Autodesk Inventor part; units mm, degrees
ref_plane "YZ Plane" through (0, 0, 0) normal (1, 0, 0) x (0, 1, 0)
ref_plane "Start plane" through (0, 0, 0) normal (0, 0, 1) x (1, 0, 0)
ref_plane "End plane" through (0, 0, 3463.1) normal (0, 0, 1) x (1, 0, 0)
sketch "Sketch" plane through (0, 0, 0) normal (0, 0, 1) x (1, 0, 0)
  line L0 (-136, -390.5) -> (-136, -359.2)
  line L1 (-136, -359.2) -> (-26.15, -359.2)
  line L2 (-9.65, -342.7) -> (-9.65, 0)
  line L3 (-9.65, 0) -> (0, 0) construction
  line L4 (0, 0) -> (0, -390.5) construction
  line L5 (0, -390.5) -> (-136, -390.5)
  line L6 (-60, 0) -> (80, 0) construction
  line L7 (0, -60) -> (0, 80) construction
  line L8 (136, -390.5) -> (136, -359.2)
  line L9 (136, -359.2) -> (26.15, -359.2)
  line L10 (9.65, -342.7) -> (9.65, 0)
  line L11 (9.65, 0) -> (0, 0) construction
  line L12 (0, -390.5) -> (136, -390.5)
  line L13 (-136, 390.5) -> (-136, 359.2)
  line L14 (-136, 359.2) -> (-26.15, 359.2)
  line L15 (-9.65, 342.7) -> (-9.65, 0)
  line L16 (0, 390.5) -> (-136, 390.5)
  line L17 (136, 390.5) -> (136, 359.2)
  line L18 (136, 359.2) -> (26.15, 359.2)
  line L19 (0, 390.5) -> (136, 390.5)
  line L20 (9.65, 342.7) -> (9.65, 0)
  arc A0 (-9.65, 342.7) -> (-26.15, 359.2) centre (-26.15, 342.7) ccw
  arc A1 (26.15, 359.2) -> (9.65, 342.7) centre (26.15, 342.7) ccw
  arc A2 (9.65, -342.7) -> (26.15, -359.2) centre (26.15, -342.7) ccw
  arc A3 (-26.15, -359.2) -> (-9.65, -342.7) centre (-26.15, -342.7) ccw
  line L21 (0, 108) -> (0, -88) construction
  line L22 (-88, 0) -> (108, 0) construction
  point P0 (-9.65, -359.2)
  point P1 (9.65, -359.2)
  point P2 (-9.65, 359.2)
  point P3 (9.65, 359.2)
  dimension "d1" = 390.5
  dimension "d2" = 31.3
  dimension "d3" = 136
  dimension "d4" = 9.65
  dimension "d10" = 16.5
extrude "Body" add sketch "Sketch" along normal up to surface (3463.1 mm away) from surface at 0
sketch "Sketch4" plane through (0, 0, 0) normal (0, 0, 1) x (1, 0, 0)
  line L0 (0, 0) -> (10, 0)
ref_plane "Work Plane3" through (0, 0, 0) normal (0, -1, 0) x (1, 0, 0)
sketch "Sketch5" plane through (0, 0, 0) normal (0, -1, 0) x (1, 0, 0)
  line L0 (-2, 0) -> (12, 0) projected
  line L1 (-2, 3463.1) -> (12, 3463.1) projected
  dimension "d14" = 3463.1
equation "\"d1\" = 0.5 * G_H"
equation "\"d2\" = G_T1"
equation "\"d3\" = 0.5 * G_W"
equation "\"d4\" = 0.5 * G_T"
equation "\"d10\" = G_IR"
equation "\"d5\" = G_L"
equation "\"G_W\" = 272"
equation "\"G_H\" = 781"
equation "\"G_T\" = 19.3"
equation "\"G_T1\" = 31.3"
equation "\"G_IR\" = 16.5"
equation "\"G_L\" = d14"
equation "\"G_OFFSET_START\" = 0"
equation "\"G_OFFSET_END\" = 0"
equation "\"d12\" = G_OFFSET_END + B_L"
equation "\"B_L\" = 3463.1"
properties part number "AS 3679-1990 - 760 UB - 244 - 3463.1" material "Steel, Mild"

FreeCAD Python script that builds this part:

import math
import FreeCAD as App
import Part
import Sketcher

doc = App.newDocument("Part")
params = doc.addObject("Spreadsheet::Sheet", "Params")
for row, (alias, value) in enumerate([
    ("sketch1_radius", "16.5 mm"),
    ("sketch1_height", "31.3 mm"),
    ("pad1_length", "3463.1 mm"),
], start=1):
    params.set(f"A{row}", alias)
    params.set(f"B{row}", "=" + value)
    params.setAlias(f"B{row}", alias)

body = doc.addObject("PartDesign::Body", "Body")

sketch1 = doc.addObject("Sketcher::SketchObject", "Sketch")
body.addObject(sketch1)
sketch1.AttachmentSupport = (doc.XY_Plane, [""])
sketch1.MapMode = "FlatFace"
sketch1.addGeometry([
    Part.LineSegment(App.Vector(-136, -359, 0), App.Vector(-136, -390, 0)),
    Part.LineSegment(App.Vector(-136, -390, 0), App.Vector(136, -390, 0)),
    Part.LineSegment(App.Vector(136, -390, 0), App.Vector(136, -359, 0)),
    Part.LineSegment(App.Vector(136, -359, 0), App.Vector(26, -359, 0)),
    Part.ArcOfCircle(Part.Circle(App.Vector(26, -343, 0), App.Vector(0, 0, 1), 16), math.radians(180), math.radians(270)),
    Part.LineSegment(App.Vector(10, -343, 0), App.Vector(10, 343, 0)),
    Part.ArcOfCircle(Part.Circle(App.Vector(26, 343, 0), App.Vector(0, 0, 1), 16), math.radians(90), math.radians(180)),
    Part.LineSegment(App.Vector(26, 359, 0), App.Vector(136, 359, 0)),
    Part.LineSegment(App.Vector(136, 359, 0), App.Vector(136, 390, 0)),
    Part.LineSegment(App.Vector(136, 390, 0), App.Vector(-136, 390, 0)),
    Part.LineSegment(App.Vector(-136, 390, 0), App.Vector(-136, 359, 0)),
    Part.LineSegment(App.Vector(-136, 359, 0), App.Vector(-26, 359, 0)),
    Part.ArcOfCircle(Part.Circle(App.Vector(-26, 343, 0), App.Vector(0, 0, 1), 16), math.radians(0), math.radians(90)),
    Part.LineSegment(App.Vector(-10, 343, 0), App.Vector(-10, -343, 0)),
    Part.ArcOfCircle(Part.Circle(App.Vector(-26, -343, 0), App.Vector(0, 0, 1), 16), math.radians(-90), math.radians(0)),
    Part.LineSegment(App.Vector(-26, -359, 0), App.Vector(-136, -359, 0)),
], False)
sketch1.addConstraint([
    Sketcher.Constraint("Coincident", 0, 2, 1, 1),
    Sketcher.Constraint("Coincident", 1, 2, 2, 1),
    Sketcher.Constraint("Coincident", 2, 2, 3, 1),
    Sketcher.Constraint("Tangent", 3, 2, 4, 2),
    Sketcher.Constraint("Tangent", 4, 1, 5, 1),
    Sketcher.Constraint("Tangent", 5, 2, 6, 2),
    Sketcher.Constraint("Tangent", 6, 1, 7, 1),
    Sketcher.Constraint("Coincident", 7, 2, 8, 1),
    Sketcher.Constraint("Coincident", 8, 2, 9, 1),
    Sketcher.Constraint("Coincident", 9, 2, 10, 1),
    Sketcher.Constraint("Coincident", 10, 2, 11, 1),
    Sketcher.Constraint("Tangent", 11, 2, 12, 2),
    Sketcher.Constraint("Tangent", 12, 1, 13, 1),
    Sketcher.Constraint("Tangent", 13, 2, 14, 2),
    Sketcher.Constraint("Tangent", 14, 1, 15, 1),
    Sketcher.Constraint("Coincident", 15, 2, 0, 1),
    Sketcher.Constraint("Vertical", 0),
    Sketcher.Constraint("Horizontal", 1),
    Sketcher.Constraint("Vertical", 2),
    Sketcher.Constraint("Horizontal", 3),
    Sketcher.Constraint("Vertical", 5),
    Sketcher.Constraint("Horizontal", 7),
    Sketcher.Constraint("Vertical", 8),
    Sketcher.Constraint("Horizontal", 9),
    Sketcher.Constraint("Vertical", 10),
    Sketcher.Constraint("Horizontal", 11),
    Sketcher.Constraint("Vertical", 13),
    Sketcher.Constraint("Horizontal", 15),
    Sketcher.Constraint("Equal", 4, 6),
    Sketcher.Constraint("Equal", 6, 12),
    Sketcher.Constraint("Equal", 12, 14),
    Sketcher.Constraint("Symmetric", 4, 3, 12, 3, -1, 1),
    Sketcher.Constraint("Symmetric", 0, 2, 8, 2, -1, 1),
    Sketcher.Constraint("Symmetric", 7, 2, 10, 2, -2),
    Sketcher.Constraint("Symmetric", 2, 2, 15, 2, -2),
    Sketcher.Constraint("Radius", 4, 16.5),
    Sketcher.Constraint("DistanceY", 0, 2, 0, 1, 31.3),
    Sketcher.Constraint("DistanceX", 0, 2, -1, 1, 136.0),
    Sketcher.Constraint("DistanceY", 0, 2, -1, 1, 390.5),
    Sketcher.Constraint("DistanceX", -1, 1, 4, 1, 9.65),
])
sketch1.setExpression("Constraints[35]", "Params.sketch1_radius")
sketch1.setExpression("Constraints[36]", "Params.sketch1_height")
pad1 = doc.addObject("PartDesign::Pad", "Pad")
body.addObject(pad1)
pad1.Profile = sketch1
pad1.setExpression("Length", "Params.pad1_length")

doc.recompute()
